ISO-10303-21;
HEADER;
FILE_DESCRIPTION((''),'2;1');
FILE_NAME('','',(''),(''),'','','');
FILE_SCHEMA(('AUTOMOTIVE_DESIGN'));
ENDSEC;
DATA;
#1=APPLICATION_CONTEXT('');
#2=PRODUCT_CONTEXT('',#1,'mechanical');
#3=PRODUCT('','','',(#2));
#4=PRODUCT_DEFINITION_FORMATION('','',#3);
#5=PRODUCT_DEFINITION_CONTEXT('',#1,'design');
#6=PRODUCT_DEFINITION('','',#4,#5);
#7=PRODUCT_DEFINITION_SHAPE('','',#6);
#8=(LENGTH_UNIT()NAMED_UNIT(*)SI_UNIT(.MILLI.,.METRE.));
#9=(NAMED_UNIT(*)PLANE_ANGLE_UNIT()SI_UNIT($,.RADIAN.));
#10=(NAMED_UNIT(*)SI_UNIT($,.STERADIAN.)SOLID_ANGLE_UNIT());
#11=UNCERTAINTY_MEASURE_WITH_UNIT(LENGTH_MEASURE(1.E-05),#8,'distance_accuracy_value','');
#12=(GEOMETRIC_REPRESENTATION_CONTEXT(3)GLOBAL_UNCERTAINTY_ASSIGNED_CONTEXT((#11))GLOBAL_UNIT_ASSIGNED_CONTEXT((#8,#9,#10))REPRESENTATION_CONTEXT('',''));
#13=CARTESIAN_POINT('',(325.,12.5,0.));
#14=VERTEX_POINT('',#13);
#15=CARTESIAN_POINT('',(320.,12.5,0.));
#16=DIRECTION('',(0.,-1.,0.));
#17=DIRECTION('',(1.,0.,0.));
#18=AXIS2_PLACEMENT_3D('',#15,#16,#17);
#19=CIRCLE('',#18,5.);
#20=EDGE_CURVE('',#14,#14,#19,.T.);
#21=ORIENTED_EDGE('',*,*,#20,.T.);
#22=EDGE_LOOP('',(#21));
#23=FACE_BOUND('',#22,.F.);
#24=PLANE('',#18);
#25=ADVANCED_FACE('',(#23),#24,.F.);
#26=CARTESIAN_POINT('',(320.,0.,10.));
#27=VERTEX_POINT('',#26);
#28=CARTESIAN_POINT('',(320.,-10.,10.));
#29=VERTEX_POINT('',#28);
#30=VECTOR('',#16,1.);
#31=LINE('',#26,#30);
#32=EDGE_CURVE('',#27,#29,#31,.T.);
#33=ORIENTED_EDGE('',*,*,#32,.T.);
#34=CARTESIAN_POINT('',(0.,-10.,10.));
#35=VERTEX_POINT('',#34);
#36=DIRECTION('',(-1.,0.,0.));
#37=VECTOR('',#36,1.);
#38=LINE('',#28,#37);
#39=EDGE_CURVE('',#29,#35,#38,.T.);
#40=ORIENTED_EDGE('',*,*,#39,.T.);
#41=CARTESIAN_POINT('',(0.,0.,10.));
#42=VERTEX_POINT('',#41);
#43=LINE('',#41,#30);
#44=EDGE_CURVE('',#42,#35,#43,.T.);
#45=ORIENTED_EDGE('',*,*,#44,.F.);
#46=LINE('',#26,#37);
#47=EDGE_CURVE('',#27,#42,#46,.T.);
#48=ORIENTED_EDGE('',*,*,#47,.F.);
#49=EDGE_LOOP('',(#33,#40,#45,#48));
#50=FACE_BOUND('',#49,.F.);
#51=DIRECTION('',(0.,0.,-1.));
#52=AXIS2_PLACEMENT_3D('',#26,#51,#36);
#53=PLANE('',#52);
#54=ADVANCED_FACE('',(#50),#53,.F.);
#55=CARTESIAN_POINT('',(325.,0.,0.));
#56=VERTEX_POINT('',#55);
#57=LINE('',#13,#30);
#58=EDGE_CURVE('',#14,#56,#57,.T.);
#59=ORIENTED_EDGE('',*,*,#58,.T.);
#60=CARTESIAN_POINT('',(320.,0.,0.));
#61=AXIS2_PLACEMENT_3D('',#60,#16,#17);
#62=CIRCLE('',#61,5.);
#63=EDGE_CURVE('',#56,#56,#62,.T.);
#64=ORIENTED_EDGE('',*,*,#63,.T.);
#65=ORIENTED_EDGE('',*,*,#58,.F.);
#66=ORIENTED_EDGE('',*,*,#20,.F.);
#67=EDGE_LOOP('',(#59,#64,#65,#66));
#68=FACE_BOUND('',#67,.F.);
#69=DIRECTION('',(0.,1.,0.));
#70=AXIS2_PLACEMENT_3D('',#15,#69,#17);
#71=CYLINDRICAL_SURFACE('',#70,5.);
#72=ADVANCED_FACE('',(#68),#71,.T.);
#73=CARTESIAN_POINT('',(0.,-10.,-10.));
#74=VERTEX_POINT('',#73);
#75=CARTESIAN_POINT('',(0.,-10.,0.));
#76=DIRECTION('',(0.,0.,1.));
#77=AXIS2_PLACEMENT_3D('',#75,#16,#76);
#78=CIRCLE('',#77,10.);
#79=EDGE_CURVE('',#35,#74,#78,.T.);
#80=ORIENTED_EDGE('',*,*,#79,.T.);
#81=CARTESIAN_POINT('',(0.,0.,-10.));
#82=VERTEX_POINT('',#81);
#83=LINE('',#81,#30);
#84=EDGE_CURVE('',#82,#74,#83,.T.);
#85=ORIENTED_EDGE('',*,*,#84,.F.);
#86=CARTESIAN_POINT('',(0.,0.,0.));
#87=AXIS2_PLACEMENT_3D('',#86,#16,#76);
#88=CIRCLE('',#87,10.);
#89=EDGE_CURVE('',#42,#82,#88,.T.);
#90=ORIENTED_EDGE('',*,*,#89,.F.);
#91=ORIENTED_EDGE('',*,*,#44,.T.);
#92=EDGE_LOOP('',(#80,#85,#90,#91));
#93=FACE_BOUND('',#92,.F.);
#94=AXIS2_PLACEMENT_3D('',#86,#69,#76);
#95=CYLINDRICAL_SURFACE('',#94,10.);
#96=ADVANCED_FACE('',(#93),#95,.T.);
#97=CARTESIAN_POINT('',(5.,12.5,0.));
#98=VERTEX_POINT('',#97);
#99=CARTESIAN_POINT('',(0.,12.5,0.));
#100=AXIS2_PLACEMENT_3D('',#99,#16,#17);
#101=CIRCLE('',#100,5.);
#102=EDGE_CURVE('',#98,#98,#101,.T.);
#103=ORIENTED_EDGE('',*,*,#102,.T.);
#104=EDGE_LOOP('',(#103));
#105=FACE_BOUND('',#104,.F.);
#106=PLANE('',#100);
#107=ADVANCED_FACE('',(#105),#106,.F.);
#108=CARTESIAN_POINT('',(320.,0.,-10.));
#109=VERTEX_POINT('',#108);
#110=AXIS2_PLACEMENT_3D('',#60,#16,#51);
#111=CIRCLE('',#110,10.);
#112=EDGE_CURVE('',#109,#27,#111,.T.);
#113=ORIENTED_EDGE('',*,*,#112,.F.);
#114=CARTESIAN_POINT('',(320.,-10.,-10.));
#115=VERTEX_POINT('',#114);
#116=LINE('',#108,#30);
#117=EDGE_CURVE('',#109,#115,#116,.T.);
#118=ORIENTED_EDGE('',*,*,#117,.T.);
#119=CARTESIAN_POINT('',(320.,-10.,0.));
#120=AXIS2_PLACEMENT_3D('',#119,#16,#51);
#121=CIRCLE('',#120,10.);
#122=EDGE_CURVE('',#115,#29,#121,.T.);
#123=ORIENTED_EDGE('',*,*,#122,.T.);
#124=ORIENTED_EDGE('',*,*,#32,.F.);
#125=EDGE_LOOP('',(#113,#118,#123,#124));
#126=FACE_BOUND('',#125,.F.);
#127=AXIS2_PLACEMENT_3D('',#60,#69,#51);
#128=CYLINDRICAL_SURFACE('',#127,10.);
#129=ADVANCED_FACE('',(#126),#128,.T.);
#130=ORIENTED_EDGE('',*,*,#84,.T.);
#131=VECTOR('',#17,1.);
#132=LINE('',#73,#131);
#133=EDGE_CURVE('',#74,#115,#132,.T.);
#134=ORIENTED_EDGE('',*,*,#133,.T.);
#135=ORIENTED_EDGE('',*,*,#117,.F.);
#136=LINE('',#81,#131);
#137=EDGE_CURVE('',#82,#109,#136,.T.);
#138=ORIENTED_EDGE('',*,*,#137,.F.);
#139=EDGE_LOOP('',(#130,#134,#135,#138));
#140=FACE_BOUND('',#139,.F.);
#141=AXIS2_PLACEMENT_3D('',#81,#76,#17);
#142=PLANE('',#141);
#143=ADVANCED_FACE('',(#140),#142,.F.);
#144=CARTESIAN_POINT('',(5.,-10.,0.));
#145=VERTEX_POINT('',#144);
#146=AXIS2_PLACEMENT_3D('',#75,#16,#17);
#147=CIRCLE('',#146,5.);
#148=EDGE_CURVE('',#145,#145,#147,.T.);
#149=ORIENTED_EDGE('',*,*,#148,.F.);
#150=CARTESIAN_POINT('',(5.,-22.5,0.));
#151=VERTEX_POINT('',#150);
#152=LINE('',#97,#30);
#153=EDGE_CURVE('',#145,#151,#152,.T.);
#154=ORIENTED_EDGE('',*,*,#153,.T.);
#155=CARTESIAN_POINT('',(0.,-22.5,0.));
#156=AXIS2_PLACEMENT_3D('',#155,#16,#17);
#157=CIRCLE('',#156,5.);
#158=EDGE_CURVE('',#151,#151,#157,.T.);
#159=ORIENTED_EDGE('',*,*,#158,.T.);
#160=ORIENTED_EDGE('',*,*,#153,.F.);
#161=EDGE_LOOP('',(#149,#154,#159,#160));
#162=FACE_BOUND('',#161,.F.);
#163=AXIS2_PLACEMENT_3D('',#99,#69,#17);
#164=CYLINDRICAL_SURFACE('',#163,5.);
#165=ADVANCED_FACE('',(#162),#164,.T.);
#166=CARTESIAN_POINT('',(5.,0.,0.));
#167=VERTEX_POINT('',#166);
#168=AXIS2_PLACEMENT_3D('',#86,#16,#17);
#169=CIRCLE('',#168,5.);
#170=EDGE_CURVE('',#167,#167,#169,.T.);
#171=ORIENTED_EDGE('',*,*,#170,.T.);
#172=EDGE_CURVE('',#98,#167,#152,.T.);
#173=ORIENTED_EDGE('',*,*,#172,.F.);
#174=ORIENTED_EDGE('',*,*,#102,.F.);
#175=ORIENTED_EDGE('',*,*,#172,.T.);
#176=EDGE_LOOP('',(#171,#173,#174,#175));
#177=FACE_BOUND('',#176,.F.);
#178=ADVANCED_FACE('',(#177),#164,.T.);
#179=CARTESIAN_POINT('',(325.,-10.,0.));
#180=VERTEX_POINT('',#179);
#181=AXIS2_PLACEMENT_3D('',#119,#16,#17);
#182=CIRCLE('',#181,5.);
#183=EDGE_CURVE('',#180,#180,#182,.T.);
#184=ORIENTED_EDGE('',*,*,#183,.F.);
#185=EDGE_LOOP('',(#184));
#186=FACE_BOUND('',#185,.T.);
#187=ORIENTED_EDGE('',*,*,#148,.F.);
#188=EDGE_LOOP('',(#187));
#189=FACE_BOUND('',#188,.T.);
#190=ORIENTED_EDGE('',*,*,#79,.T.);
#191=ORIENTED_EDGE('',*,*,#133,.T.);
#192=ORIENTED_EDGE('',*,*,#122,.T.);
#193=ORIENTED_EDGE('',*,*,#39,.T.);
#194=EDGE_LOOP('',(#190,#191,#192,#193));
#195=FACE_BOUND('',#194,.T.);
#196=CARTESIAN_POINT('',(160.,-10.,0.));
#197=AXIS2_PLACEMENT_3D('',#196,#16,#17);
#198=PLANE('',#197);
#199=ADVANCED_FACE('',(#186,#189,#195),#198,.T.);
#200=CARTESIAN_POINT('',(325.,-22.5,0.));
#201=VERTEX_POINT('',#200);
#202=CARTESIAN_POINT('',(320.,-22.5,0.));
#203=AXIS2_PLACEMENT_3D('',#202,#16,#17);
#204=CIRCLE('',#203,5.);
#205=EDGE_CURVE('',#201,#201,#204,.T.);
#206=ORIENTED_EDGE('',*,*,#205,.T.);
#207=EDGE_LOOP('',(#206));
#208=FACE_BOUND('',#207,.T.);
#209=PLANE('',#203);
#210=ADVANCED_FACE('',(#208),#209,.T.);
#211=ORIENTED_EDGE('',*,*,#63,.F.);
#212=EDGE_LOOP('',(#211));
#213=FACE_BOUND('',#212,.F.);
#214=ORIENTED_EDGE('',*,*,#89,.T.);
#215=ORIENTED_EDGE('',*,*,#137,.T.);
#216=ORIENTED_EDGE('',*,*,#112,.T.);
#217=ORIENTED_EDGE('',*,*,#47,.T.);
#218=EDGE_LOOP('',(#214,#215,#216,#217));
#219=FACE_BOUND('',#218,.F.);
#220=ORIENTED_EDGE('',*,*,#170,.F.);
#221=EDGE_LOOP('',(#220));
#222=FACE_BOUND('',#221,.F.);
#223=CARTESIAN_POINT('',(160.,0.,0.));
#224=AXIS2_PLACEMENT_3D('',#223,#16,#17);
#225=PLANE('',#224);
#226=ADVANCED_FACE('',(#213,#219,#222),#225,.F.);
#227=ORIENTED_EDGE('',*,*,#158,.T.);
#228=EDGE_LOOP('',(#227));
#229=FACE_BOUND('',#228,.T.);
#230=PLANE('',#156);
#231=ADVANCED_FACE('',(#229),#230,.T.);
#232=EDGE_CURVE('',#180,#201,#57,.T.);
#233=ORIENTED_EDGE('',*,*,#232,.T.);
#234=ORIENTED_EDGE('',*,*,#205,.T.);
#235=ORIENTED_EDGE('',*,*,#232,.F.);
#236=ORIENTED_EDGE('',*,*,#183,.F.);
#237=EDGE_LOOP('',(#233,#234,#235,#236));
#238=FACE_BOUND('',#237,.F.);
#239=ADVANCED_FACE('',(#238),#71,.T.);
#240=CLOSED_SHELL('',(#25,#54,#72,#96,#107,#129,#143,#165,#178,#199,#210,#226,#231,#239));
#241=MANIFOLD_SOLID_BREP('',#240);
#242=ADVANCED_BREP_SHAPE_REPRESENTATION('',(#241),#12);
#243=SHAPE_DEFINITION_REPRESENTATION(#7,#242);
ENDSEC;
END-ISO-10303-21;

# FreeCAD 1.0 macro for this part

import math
import FreeCAD as App
import Part
import Sketcher
from FreeCAD import Vector

doc = App.newDocument("Part")
body = doc.addObject("PartDesign::Body", "Body")

sketch1 = body.newObject("Sketcher::SketchObject", "Sketch")
sketch1.AttachmentSupport = (doc.getObject("XZ_Plane"), [""])
sketch1.MapMode = "FlatFace"
sketch1.addGeometry(Part.LineSegment(Vector(320, 10, 0), Vector(0, 10, 0)), False)
sketch1.addGeometry(Part.ArcOfCircle(Part.Circle(Vector(0, 0, 0), Vector(0, 0, 1), 10), math.radians(90), math.radians(270)), False)
sketch1.addGeometry(Part.LineSegment(Vector(0, -10, 0), Vector(320, -10, 0)), False)
sketch1.addGeometry(Part.ArcOfCircle(Part.Circle(Vector(320, 0, 0), Vector(0, 0, 1), 10), math.radians(-90), math.radians(90)), False)
sketch1.addGeometry(Part.Circle(Vector(0, 0, 0), Vector(0, 0, 1), 5), False)
sketch1.addGeometry(Part.Circle(Vector(320, 0, 0), Vector(0, 0, 1), 5), False)
sketch1.addConstraint(Sketcher.Constraint("Tangent", 0, 2, 1, 1))
sketch1.addConstraint(Sketcher.Constraint("Tangent", 1, 2, 2, 1))
sketch1.addConstraint(Sketcher.Constraint("Tangent", 2, 2, 3, 1))
sketch1.addConstraint(Sketcher.Constraint("Tangent", 3, 2, 0, 1))
sketch1.addConstraint(Sketcher.Constraint("Horizontal", 0))
sketch1.addConstraint(Sketcher.Constraint("Horizontal", 2))
sketch1.addConstraint(Sketcher.Constraint("Coincident", 1, 3, -1, 1))
sketch1.addConstraint(Sketcher.Constraint("Coincident", 4, 3, -1, 1))
sketch1.addConstraint(Sketcher.Constraint("Coincident", 5, 3, 3, 3))
sketch1.addConstraint(Sketcher.Constraint("Equal", 4, 5))
sketch1.addConstraint(Sketcher.Constraint("Diameter", 4, 10.0))
sketch1.addConstraint(Sketcher.Constraint("Radius", 1, 10.0))
sketch1.addConstraint(Sketcher.Constraint("DistanceX", 0, 2, 0, 1, 320.0))
pad1 = body.newObject("PartDesign::Pad", "Pad")
pad1.Profile = sketch1
pad1.Length = 10

sketch2 = body.newObject("Sketcher::SketchObject", "Sketch001")
sketch2.AttachmentSupport = (doc.getObject("XZ_Plane"), [""])
sketch2.MapMode = "FlatFace"
sketch2.AttachmentOffset = App.Placement(Vector(0, 0, -12.5), App.Rotation())
sketch2.addGeometry(Part.Circle(Vector(0, 0, 0), Vector(0, 0, 1), 5), False)
sketch2.addGeometry(Part.Circle(Vector(320, 0, 0), Vector(0, 0, 1), 5), False)
sketch2.addConstraint(Sketcher.Constraint("Coincident", 0, 3, -1, 1))
sketch2.addConstraint(Sketcher.Constraint("Equal", 0, 1))
sketch2.addConstraint(Sketcher.Constraint("PointOnObject", 1, 3, -1))
sketch2.addConstraint(Sketcher.Constraint("Diameter", 0, 10.0))
sketch2.addConstraint(Sketcher.Constraint("DistanceX", -1, 1, 1, 3, 320.0))
pad2 = body.newObject("PartDesign::Pad", "Pad001")
pad2.Profile = sketch2
pad2.Length = 35

doc.recompute()
